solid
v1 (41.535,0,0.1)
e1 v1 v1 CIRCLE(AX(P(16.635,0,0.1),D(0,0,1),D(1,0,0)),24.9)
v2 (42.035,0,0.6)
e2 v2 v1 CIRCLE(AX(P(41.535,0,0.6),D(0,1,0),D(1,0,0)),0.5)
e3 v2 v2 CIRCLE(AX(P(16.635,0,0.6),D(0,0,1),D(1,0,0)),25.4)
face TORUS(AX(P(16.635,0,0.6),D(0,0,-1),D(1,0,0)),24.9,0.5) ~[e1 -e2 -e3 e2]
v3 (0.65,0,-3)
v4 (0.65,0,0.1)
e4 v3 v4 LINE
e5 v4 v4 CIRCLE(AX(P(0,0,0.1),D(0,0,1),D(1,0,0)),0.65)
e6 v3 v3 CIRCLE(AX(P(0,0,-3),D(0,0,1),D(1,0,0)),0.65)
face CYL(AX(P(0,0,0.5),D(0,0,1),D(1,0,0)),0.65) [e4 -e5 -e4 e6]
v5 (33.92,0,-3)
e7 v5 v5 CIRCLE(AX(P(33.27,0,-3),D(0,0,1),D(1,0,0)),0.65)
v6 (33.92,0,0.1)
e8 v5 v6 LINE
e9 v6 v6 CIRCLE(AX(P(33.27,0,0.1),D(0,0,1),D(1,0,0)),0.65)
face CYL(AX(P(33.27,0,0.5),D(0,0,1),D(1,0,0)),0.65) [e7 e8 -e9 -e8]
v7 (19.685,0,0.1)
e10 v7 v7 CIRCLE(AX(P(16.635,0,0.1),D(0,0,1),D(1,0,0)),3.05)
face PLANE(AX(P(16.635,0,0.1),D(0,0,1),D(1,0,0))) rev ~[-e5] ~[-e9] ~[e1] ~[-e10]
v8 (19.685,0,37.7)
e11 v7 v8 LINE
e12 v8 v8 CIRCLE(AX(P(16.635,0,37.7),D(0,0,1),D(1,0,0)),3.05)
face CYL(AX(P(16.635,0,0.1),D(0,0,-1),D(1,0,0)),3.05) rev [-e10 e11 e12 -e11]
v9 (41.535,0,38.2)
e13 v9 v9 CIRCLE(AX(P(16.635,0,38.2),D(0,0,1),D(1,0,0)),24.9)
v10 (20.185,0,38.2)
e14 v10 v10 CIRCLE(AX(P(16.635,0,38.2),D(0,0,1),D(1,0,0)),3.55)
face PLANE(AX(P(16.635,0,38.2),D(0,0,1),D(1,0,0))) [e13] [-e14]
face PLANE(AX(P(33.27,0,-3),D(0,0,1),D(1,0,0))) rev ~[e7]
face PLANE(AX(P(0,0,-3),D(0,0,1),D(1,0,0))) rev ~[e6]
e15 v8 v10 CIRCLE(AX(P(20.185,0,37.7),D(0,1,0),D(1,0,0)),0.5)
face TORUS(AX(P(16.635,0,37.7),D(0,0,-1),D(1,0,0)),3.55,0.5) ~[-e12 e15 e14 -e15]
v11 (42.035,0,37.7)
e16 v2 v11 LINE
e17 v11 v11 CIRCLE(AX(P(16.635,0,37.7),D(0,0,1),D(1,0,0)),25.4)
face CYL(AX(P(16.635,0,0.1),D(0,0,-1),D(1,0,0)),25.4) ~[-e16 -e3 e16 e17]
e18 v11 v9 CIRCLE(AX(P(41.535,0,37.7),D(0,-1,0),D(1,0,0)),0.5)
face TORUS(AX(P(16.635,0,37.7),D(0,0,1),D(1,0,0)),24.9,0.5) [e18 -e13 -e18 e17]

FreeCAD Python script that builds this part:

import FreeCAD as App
import Part
import Sketcher
from FreeCAD import Vector


def edges_at(feature, points):
    """Names of the edges that pass closest to the given points."""
    edges = feature.Shape.Edges
    near = lambda p: min(range(len(edges)), key=lambda i: edges[i].distToShape(Part.Vertex(*p))[0])
    return sorted({f"Edge{near(p) + 1}" for p in points})

doc = App.newDocument("Part")
body = doc.addObject("PartDesign::Body", "Body")
body.AllowCompound = True

sketch1 = body.newObject("Sketcher::SketchObject", "Sketch")
sketch1.AttachmentSupport = (doc.getObject("XY_Plane"), [""])
sketch1.MapMode = "FlatFace"
sketch1.AttachmentOffset = App.Placement(Vector(0, 0, 0.5), App.Rotation())
sketch1.addGeometry([
    Part.Circle(Vector(0, 0, 0), Vector(0, 0, 1), 0.7),
    Part.Circle(Vector(33.3, 0, 0), Vector(0, 0, 1), 0.7),
], False)
sketch1.addConstraint([
    Sketcher.Constraint("Coincident", 0, 3, -1, 1),
    Sketcher.Constraint("Equal", 0, 1),
    Sketcher.Constraint("PointOnObject", 1, 3, -1),
    Sketcher.Constraint("Diameter", 0, 1.3),
    Sketcher.Constraint("DistanceX", -1, 1, 1, 3, 33.27),
])
pad1 = body.newObject("PartDesign::Pad", "Pad")
pad1.Profile = sketch1
pad1.Type = "TwoLengths"
pad1.Length = 19.05
pad1.Length2 = 3.5
body2 = doc.addObject("PartDesign::Body", "Body001")

sketch2 = body2.newObject("Sketcher::SketchObject", "Sketch001")
sketch2.AttachmentSupport = (doc.getObject("XY_Plane001"), [""])
sketch2.MapMode = "FlatFace"
sketch2.AttachmentOffset = App.Placement(Vector(0, 0, 0.1), App.Rotation())
sketch2.addGeometry([
    Part.Circle(Vector(16.6, 0, 0), Vector(0, 0, 1), 25.4),
    Part.Circle(Vector(16.6, 0, 0), Vector(0, 0, 1), 3),
], False)
sketch2.addConstraint([
    Sketcher.Constraint("Coincident", 1, 3, 0, 3),
    Sketcher.Constraint("PointOnObject", 0, 3, -1),
    Sketcher.Constraint("Diameter", 0, 50.8),
    Sketcher.Constraint("Diameter", 1, 6.1),
    Sketcher.Constraint("DistanceX", -1, 1, 0, 3, 16.635),
])
pad2 = body2.newObject("PartDesign::Pad", "Pad001")
pad2.Profile = sketch2
pad2.Length = 38.1
doc.recompute()

fillet = body2.newObject("PartDesign::Fillet", "Fillet")
fillet.Base = (pad2, edges_at(pad2, [(13.585, 0, 38.2), (-8.765, 0, 38.2), (-8.765, 0, 0.1)]))
fillet.Radius = 0.5
doc.recompute()

boolean = body2.newObject("PartDesign::Boolean", "Boolean")
boolean.Type = "Fuse"
boolean.addObjects([body])

doc.recompute()
